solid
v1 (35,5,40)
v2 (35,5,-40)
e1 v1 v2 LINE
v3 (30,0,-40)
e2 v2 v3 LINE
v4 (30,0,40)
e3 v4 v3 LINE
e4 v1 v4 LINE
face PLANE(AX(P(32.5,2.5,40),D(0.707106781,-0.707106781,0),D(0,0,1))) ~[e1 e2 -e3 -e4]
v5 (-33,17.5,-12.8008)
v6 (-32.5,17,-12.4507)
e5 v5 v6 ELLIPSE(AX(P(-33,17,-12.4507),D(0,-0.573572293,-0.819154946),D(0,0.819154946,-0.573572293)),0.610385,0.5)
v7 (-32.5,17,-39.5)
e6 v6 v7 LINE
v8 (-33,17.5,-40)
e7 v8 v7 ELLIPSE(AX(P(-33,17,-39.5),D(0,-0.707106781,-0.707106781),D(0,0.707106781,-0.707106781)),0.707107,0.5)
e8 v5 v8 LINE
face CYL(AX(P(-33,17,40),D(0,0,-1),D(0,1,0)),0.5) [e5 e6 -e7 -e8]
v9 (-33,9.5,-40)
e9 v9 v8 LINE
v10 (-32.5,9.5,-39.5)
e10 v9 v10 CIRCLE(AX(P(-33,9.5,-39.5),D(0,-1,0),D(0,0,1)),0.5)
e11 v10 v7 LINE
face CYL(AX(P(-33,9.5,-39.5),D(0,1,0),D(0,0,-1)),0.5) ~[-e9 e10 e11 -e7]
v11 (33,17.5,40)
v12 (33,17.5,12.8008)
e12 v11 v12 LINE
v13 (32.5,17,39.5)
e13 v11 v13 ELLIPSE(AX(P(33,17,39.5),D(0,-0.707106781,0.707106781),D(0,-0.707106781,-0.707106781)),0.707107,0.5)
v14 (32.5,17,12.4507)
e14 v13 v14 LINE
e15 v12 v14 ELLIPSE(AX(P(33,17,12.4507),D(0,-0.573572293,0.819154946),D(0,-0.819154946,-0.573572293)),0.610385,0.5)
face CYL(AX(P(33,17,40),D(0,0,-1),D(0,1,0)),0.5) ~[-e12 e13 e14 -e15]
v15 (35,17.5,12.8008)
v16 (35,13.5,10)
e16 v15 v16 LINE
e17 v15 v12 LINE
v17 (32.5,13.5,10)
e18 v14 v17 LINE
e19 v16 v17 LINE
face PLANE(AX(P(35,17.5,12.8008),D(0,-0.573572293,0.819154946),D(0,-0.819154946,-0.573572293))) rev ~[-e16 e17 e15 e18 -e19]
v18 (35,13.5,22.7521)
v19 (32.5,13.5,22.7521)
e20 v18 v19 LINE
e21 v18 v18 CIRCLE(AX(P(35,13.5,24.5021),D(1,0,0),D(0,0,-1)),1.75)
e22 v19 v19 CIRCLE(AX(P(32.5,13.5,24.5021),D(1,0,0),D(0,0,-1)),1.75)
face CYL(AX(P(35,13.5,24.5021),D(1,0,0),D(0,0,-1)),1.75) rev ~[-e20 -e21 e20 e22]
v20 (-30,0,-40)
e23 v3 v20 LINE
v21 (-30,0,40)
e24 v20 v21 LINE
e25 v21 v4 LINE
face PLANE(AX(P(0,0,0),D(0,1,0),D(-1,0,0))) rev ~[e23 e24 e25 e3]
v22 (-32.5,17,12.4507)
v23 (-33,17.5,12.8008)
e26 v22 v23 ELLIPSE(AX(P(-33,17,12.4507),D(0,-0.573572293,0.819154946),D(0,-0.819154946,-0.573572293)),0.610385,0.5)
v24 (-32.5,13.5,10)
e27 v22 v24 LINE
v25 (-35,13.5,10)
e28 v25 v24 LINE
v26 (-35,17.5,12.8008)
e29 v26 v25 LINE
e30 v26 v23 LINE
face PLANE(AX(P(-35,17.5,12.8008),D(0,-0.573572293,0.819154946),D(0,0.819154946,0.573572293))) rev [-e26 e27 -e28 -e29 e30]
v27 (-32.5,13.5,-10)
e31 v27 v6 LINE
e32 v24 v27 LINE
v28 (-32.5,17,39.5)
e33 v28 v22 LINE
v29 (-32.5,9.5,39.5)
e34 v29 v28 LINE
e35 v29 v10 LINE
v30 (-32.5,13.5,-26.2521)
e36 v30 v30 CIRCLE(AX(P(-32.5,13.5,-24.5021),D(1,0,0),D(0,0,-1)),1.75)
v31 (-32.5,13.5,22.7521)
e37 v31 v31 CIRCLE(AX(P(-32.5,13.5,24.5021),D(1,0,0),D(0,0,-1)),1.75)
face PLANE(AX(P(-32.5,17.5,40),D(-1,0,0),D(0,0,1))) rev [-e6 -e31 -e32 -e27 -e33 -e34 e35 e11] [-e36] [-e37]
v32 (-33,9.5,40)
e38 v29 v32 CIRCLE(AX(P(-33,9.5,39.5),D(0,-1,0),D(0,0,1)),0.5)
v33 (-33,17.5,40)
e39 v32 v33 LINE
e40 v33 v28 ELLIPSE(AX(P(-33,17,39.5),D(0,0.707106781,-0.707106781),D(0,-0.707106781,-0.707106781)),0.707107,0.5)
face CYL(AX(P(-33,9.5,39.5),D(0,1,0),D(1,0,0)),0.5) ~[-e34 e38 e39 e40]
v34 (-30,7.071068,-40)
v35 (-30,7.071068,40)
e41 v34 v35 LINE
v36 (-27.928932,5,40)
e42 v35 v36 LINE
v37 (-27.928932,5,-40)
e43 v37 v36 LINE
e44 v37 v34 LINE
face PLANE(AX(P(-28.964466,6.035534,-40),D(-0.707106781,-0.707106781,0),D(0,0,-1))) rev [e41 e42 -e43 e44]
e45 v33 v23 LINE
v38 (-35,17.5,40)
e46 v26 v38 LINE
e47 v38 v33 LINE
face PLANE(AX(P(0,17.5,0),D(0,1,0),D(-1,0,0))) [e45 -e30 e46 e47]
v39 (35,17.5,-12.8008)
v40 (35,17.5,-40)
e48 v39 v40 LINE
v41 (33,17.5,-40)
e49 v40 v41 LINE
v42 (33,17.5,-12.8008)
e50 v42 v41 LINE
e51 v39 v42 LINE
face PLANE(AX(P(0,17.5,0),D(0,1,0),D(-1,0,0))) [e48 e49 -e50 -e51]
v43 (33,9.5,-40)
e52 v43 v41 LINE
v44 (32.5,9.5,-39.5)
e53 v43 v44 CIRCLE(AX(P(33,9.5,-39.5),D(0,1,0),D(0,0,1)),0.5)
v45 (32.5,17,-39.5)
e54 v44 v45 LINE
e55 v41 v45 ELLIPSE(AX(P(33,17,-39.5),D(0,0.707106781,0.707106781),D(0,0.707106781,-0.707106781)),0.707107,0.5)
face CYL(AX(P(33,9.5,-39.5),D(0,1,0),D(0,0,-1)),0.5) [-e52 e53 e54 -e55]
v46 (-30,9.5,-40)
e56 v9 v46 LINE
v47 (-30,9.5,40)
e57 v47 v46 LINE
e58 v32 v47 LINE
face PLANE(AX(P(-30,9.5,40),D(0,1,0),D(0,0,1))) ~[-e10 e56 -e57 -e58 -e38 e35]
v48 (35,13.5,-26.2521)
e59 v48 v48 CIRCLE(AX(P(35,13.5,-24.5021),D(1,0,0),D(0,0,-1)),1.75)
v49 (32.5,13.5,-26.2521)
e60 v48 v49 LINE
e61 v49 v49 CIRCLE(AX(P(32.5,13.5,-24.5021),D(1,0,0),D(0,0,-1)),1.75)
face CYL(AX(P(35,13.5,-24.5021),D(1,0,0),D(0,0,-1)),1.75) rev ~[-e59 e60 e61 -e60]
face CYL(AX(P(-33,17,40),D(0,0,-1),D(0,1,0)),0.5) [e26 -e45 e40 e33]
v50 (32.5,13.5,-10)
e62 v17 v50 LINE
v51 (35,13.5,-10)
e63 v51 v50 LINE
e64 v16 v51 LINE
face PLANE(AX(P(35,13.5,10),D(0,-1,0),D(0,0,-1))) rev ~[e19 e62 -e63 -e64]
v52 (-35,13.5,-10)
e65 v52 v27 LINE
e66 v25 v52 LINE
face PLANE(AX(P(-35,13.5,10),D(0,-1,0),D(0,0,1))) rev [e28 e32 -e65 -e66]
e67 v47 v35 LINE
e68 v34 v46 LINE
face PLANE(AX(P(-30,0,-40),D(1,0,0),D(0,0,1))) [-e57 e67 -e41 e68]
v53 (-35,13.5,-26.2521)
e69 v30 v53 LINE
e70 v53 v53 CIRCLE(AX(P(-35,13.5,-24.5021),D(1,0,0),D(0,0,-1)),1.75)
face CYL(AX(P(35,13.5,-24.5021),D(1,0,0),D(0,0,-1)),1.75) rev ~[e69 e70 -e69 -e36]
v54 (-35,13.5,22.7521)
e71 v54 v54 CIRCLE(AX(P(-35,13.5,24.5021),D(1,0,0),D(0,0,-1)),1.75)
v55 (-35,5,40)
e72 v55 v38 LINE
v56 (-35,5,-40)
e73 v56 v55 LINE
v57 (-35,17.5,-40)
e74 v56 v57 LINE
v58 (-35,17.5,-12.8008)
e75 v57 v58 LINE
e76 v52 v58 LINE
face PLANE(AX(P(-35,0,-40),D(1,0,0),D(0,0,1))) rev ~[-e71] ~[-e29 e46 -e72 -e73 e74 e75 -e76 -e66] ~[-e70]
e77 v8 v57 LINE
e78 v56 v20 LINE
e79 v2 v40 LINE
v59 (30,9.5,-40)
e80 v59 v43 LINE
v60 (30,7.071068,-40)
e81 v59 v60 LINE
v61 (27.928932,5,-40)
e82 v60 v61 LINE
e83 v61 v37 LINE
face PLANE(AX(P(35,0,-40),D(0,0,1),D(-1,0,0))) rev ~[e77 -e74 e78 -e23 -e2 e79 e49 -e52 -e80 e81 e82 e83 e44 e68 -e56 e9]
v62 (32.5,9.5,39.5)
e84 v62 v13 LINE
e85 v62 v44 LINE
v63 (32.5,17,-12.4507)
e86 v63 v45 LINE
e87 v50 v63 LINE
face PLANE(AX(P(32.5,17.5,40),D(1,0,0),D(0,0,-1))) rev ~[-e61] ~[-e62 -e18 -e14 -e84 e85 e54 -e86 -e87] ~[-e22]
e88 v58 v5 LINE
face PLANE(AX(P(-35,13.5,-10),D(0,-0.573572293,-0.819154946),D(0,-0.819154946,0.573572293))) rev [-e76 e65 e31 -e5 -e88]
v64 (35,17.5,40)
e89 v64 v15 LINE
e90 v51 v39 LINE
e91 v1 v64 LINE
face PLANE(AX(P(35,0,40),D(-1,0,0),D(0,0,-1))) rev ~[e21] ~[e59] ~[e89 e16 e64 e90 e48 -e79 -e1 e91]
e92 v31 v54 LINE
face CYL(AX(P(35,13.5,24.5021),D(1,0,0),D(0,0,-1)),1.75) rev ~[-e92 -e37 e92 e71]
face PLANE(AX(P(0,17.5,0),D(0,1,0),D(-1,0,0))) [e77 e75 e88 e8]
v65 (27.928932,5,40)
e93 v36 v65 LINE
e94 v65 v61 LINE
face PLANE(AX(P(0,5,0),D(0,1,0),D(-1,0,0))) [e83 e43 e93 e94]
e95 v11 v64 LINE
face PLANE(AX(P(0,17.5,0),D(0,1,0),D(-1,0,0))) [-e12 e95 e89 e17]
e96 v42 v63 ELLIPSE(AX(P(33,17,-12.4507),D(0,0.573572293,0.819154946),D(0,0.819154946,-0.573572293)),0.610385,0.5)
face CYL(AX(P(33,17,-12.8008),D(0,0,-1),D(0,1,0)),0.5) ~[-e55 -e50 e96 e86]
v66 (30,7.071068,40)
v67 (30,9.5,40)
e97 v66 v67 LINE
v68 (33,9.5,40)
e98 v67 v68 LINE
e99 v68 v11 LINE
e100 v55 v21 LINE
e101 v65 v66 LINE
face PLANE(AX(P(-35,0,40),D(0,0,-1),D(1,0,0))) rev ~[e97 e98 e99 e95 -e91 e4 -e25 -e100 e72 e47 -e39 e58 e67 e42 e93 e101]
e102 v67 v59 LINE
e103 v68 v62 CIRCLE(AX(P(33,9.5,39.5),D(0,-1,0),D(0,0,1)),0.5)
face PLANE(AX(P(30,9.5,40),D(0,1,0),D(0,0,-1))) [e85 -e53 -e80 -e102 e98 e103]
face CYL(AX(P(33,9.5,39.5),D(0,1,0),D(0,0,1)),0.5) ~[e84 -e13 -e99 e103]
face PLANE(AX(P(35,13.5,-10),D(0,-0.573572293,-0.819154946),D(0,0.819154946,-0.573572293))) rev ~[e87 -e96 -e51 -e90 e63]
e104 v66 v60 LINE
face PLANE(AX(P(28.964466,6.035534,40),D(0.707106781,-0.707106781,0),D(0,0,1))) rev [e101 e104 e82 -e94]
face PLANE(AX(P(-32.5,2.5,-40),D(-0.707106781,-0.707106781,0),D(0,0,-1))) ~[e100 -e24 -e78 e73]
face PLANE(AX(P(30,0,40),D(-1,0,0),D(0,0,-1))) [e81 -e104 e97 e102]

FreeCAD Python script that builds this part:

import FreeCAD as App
import Part
import Sketcher
from FreeCAD import Vector
Q = App.Units.Quantity


def edges_at(feature, points):
    """Names of the edges that pass closest to the given points."""
    edges = feature.Shape.Edges
    near = lambda p: min(range(len(edges)), key=lambda i: edges[i].distToShape(Part.Vertex(*p))[0])
    return sorted({f"Edge{near(p) + 1}" for p in points})


def faces_at(feature, points):
    """Names of the faces that lie closest to the given points."""
    faces = feature.Shape.Faces
    near = lambda p: min(range(len(faces)), key=lambda i: faces[i].distToShape(Part.Vertex(*p))[0])
    return sorted({f"Face{near(p) + 1}" for p in points})

doc = App.newDocument("Part")
body = doc.addObject("PartDesign::Body", "Body")

# Sketch on XZ plane
sketch1 = doc.addObject("Sketcher::SketchObject", "Sketch")
body.addObject(sketch1)
sketch1.AttachmentSupport = (doc.XZ_Plane, [""])
sketch1.MapMode = "FlatFace"
sketch1.addGeometry([
    Part.LineSegment(Vector(-35, -40, 0), Vector(-35, 40, 0)),
    Part.LineSegment(Vector(-35, 40, 0), Vector(35, 40, 0)),
    Part.LineSegment(Vector(35, 40, 0), Vector(35, -40, 0)),
    Part.LineSegment(Vector(35, -40, 0), Vector(-35, -40, 0)),
], False)
sketch1.addConstraint([
    Sketcher.Constraint("Coincident", 0, 2, 1, 1),
    Sketcher.Constraint("Coincident", 1, 2, 2, 1),
    Sketcher.Constraint("Coincident", 2, 2, 3, 1),
    Sketcher.Constraint("Coincident", 3, 2, 0, 1),
    Sketcher.Constraint("Vertical", 0),
    Sketcher.Constraint("Horizontal", 1),
    Sketcher.Constraint("Vertical", 2),
    Sketcher.Constraint("Horizontal", 3),
    Sketcher.Constraint("Symmetric", 0, 2, 2, 2, -1, 1),
    Sketcher.Constraint("DistanceX", 1, 1, 1, 2, Q("70 mm")),
    Sketcher.Constraint("DistanceY", 0, 1, 0, 2, Q("80 mm")),
])
pad1 = doc.addObject("PartDesign::Pad", "Pad")
body.addObject(pad1)
pad1.Profile = sketch1
pad1.Length = 17.5
pad1.Reversed = True
doc.recompute()

chamfer = doc.addObject("PartDesign::Chamfer", "Chamfer")
body.addObject(chamfer)
chamfer.Base = (pad1, edges_at(pad1, [(35, 0, 0), (-35, 0, 0)]))
chamfer.Size = 5
doc.recompute()

thickness = doc.addObject("PartDesign::Thickness", "Thickness")
body.addObject(thickness)
thickness.Base = (chamfer, faces_at(chamfer, [(10, 11.667, 40), (11.667, 17.5, 13.333), (-10, 11.667, -40)]))
thickness.Value = 5
thickness.Reversed = True
thickness.Join = "Intersection"

# Sketch on YZ plane
sketch2 = doc.addObject("Sketcher::SketchObject", "Sketch001")
body.addObject(sketch2)
sketch2.AttachmentSupport = (doc.YZ_Plane, [""])
sketch2.MapMode = "FlatFace"
sketch2.AttachmentOffset = App.Placement(Vector(0, 0, 30), App.Rotation())
sketch2.addGeometry([
    Part.LineSegment(Vector(10, 40, 0), Vector(10, -40, 0)),
    Part.LineSegment(Vector(10, -40, 0), Vector(18, -40, 0)),
    Part.LineSegment(Vector(18, -40, 0), Vector(18, 40, 0)),
    Part.LineSegment(Vector(18, 40, 0), Vector(10, 40, 0)),
], False)
sketch2.addConstraint([
    Sketcher.Constraint("Coincident", 0, 2, 1, 1),
    Sketcher.Constraint("Coincident", 1, 2, 2, 1),
    Sketcher.Constraint("Coincident", 2, 2, 3, 1),
    Sketcher.Constraint("Coincident", 3, 2, 0, 1),
    Sketcher.Constraint("Vertical", 0),
    Sketcher.Constraint("Horizontal", 1),
    Sketcher.Constraint("Vertical", 2),
    Sketcher.Constraint("Horizontal", 3),
    Sketcher.Constraint("DistanceX", 1, 1, 1, 2, Q("8 mm")),
    Sketcher.Constraint("DistanceY", 0, 2, 0, 1, Q("80 mm")),
    Sketcher.Constraint("DistanceY", 0, 2, -1, 1, Q("40 mm")),
    Sketcher.Constraint("DistanceX", -1, 1, 0, 2, Q("9.5 mm")),
])
pocket1 = doc.addObject("PartDesign::Pocket", "Pocket")
body.addObject(pocket1)
pocket1.Profile = sketch2
pocket1.Length = 2.5
pocket1.Reversed = True

# Sketch on YZ plane
sketch3 = doc.addObject("Sketcher::SketchObject", "Sketch002")
body.addObject(sketch3)
sketch3.AttachmentSupport = (doc.YZ_Plane, [""])
sketch3.MapMode = "FlatFace"
sketch3.AttachmentOffset = App.Placement(Vector(0, 0, 35), App.Rotation())
sketch3.addGeometry([
    Part.LineSegment(Vector(17.5, -12.8, 0), Vector(17.5, 12.8, 0)),
    Part.LineSegment(Vector(17.5, 12.8, 0), Vector(13.5, 10, 0)),
    Part.LineSegment(Vector(13.5, 10, 0), Vector(13.5, -10, 0)),
    Part.LineSegment(Vector(13.5, -10, 0), Vector(17.5, -12.8, 0)),
], False)
sketch3.addConstraint([
    Sketcher.Constraint("Coincident", 0, 2, 1, 1),
    Sketcher.Constraint("Coincident", 1, 2, 2, 1),
    Sketcher.Constraint("Coincident", 2, 2, 3, 1),
    Sketcher.Constraint("Coincident", 3, 2, 0, 1),
    Sketcher.Constraint("Vertical", 0),
    Sketcher.Constraint("Vertical", 2),
    Sketcher.Constraint("Equal", 1, 3),
    Sketcher.Constraint("DistanceY", 2, 2, 2, 1, Q("20 mm")),
    Sketcher.Constraint("Angle", 1, Q("-145.0003 deg")),
    Sketcher.Constraint("DistanceY", -1, 1, 1, 2, Q("10 mm")),
    Sketcher.Constraint("DistanceX", 1, 2, 0, 2, Q("4 mm")),
    Sketcher.Constraint("DistanceX", -1, 1, 0, 2, Q("17.5 mm")),
])
pocket2 = doc.addObject("PartDesign::Pocket", "Pocket001")
body.addObject(pocket2)
pocket2.Profile = sketch3
pocket2.Length = 2.5
doc.recompute()

fillet = doc.addObject("PartDesign::Fillet", "Fillet")
body.addObject(fillet)
fillet.Base = (pocket2, edges_at(pocket2, [
    (32.5, 17.5, -26.4),
    (32.5, 17.5, 26.4),
    (32.5, 13.5, -40),
    (32.5, 13.5, 40),
]))
fillet.Radius = 0.5
doc.recompute()

mirrored = doc.addObject("PartDesign::Mirrored", "Mirrored")
body.addObject(mirrored)
mirrored.Originals = [pocket1, fillet, pocket2]
mirrored.MirrorPlane = (doc.YZ_Plane, [""])
body.Tip = mirrored

# Sketch on YZ plane
sketch4 = doc.addObject("Sketcher::SketchObject", "Sketch003")
body.addObject(sketch4)
sketch4.AttachmentSupport = (doc.YZ_Plane, [""])
sketch4.MapMode = "FlatFace"
sketch4.AttachmentOffset = App.Placement(Vector(0, 0, 35), App.Rotation())
sketch4.addGeometry([
    Part.Circle(Vector(13.5, 24.5, 0), Vector(0, 0, 1), 1.8),
    Part.Circle(Vector(13.5, -24.5, 0), Vector(0, 0, 1), 1.8),
], False)
sketch4.addConstraint([
    Sketcher.Constraint("Equal", 0, 1),
    Sketcher.Constraint("Symmetric", 0, 3, 1, 3, -1),
    Sketcher.Constraint("Diameter", 0, Q("3.5 mm")),
    Sketcher.Constraint("DistanceX", -1, 1, 0, 3, Q("13.5 mm")),
    Sketcher.Constraint("DistanceY", -1, 1, 0, 3, Q("24.502 mm")),
])
pocket3 = doc.addObject("PartDesign::Pocket", "Pocket002")
body.addObject(pocket3)
pocket3.Profile = sketch4
pocket3.Type = "ThroughAll"

doc.recompute()
